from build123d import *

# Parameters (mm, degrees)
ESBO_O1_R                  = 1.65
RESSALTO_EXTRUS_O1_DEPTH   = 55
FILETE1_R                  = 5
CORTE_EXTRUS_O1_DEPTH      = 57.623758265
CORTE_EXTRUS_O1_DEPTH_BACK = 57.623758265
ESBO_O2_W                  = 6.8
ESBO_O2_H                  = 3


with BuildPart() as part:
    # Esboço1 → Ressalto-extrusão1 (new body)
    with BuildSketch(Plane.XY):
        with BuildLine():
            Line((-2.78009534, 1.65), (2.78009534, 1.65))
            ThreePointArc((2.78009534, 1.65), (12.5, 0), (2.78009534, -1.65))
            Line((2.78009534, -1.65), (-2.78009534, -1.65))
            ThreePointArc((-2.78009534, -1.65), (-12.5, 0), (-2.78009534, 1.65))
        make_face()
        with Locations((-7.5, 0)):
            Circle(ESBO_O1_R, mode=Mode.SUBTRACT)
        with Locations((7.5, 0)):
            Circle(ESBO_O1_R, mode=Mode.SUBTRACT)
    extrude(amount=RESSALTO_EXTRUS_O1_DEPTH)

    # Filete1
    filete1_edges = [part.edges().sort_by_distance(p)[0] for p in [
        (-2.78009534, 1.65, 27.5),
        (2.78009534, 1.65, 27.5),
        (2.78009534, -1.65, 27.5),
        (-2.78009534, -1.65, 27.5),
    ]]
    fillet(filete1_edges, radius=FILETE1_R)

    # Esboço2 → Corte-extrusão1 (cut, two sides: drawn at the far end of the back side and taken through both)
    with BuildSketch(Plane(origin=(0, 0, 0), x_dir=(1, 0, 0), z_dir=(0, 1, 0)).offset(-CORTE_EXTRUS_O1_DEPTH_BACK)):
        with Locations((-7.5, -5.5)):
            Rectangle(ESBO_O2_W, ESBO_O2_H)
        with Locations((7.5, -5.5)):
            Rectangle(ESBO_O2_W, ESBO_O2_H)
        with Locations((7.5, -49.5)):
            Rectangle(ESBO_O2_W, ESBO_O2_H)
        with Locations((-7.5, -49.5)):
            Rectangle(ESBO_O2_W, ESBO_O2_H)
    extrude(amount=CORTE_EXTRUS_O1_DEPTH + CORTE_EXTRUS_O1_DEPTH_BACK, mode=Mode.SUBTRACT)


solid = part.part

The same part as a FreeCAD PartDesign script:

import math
import FreeCAD as App
import Part
import Sketcher

V = App.Vector
Q = App.Units.Quantity


def edges_at(feature, points):
    """Names of the edges that pass closest to the given points."""
    edges = feature.Shape.Edges
    near = lambda p: min(range(len(edges)), key=lambda i: edges[i].distToShape(Part.Vertex(*p))[0])
    return sorted({f"Edge{near(p) + 1}" for p in points})


def add_polygon(sketch, points):
    """Adds a closed chain of lines whose ends are joined by coincident constraints."""
    first, n = sketch.GeometryCount, len(points)
    for a, b in zip(points, points[1:] + points[:1]):
        sketch.addGeometry(Part.LineSegment(App.Vector(*a, 0), App.Vector(*b, 0)), False)
    for i in range(n):
        sketch.addConstraint(Sketcher.Constraint("Coincident", first + i, 2, first + (i + 1) % n, 1))

doc = App.newDocument("Part")
body = doc.addObject("PartDesign::Body", "Body")

sketch1 = body.newObject("Sketcher::SketchObject", "Sketch")
sketch1.AttachmentSupport = (doc.getObject("XY_Plane"), [""])
sketch1.MapMode = "FlatFace"
sketch1.addGeometry([
    Part.LineSegment(V(2.8, 1.6, 0), V(-2.8, 1.6, 0)),
    Part.ArcOfCircle(Part.Circle(V(-7.5, 0, 0), V(0, 0, 1), 5), math.radians(19), math.radians(341)),
    Part.LineSegment(V(-2.8, -1.6, 0), V(2.8, -1.6, 0)),
    Part.ArcOfCircle(Part.Circle(V(7.5, 0, 0), V(0, 0, 1), 5), math.radians(-161), math.radians(161)),
    Part.Circle(V(7.5, 0, 0), V(0, 0, 1), 1.6),
    Part.Circle(V(-7.5, 0, 0), V(0, 0, 1), 1.6),
], False)
sketch1.addConstraint([
    Sketcher.Constraint("Coincident", 0, 2, 1, 1),
    Sketcher.Constraint("Coincident", 1, 2, 2, 1),
    Sketcher.Constraint("Coincident", 2, 2, 3, 1),
    Sketcher.Constraint("Coincident", 3, 2, 0, 1),
    Sketcher.Constraint("Horizontal", 0),
    Sketcher.Constraint("Horizontal", 2),
    Sketcher.Constraint("Coincident", 4, 3, 3, 3),
    Sketcher.Constraint("Coincident", 5, 3, 1, 3),
    Sketcher.Constraint("Equal", 1, 3),
    Sketcher.Constraint("Equal", 4, 5),
    Sketcher.Constraint("Symmetric", 1, 3, 3, 3, -1, 1),
    Sketcher.Constraint("Symmetric", 0, 2, 1, 2, -1),
    Sketcher.Constraint("Radius", 1, Q("5 mm")),
    Sketcher.Constraint("Diameter", 4, Q("3.3 mm")),
    Sketcher.Constraint("DistanceX", 1, 3, 3, 3, Q("15 mm")),
    Sketcher.Constraint("DistanceY", 1, 2, 0, 2, Q("3.3 mm")),
])
pad1 = body.newObject("PartDesign::Pad", "Pad")
pad1.Profile = sketch1
pad1.Length = 55
doc.recompute()

fillet = body.newObject("PartDesign::Fillet", "Fillet")
fillet.Base = (pad1, edges_at(pad1, [
    (-2.78, 1.65, 27.5),
    (2.78, 1.65, 27.5),
    (2.78, -1.65, 27.5),
    (-2.78, -1.65, 27.5),
]))
fillet.Radius = 5

sketch2 = body.newObject("Sketcher::SketchObject", "Sketch001")
sketch2.AttachmentSupport = (doc.getObject("XZ_Plane"), [""])
sketch2.MapMode = "FlatFace"
add_polygon(sketch2, [(-10.9, 4), (-10.9, 7), (-4.1, 7), (-4.1, 4)])
add_polygon(sketch2, [(4.1, 4), (4.1, 7), (10.9, 7), (10.9, 4)])
add_polygon(sketch2, [(4.1, 48), (4.1, 51), (10.9, 51), (10.9, 48)])
add_polygon(sketch2, [(-10.9, 48), (-10.9, 51), (-4.1, 51), (-4.1, 48)])
sketch2.addConstraint([
    Sketcher.Constraint("Vertical", 0),
    Sketcher.Constraint("Horizontal", 1),
    Sketcher.Constraint("Vertical", 2),
    Sketcher.Constraint("Horizontal", 3),
    Sketcher.Constraint("Vertical", 4),
    Sketcher.Constraint("Horizontal", 5),
    Sketcher.Constraint("Vertical", 6),
    Sketcher.Constraint("Horizontal", 7),
    Sketcher.Constraint("Vertical", 8),
    Sketcher.Constraint("Horizontal", 9),
    Sketcher.Constraint("Vertical", 10),
    Sketcher.Constraint("Horizontal", 11),
    Sketcher.Constraint("Vertical", 12),
    Sketcher.Constraint("Horizontal", 13),
    Sketcher.Constraint("Vertical", 14),
    Sketcher.Constraint("Horizontal", 15),
    Sketcher.Constraint("Symmetric", 1, 2, 4, 2, -2),
    Sketcher.Constraint("Symmetric", 3, 2, 6, 2, -2),
    Sketcher.Constraint("Symmetric", 9, 2, 12, 2, -2),
    Sketcher.Constraint("Symmetric", 11, 2, 14, 2, -2),
    Sketcher.Constraint("Vertical", 7, 2, 8, 2),
    Sketcher.Constraint("Vertical", 6, 2, 9, 2),
    Sketcher.Constraint("Equal", 6, 8),
    Sketcher.Constraint("DistanceY", 0, 1, 0, 2, Q("3 mm")),
    Sketcher.Constraint("DistanceX", 1, 1, 1, 2, Q("6.8 mm")),
    Sketcher.Constraint("DistanceY", -1, 1, 0, 2, Q("7 mm")),
    Sketcher.Constraint("DistanceY", -1, 1, 8, 2, Q("51 mm")),
    Sketcher.Constraint("DistanceX", 0, 2, 4, 2, Q("15 mm")),
])
pocket1 = body.newObject("PartDesign::Pocket", "Pocket")
pocket1.Profile = sketch2
pocket1.Type = "ThroughAll"
pocket1.Midplane = True

doc.recompute()
